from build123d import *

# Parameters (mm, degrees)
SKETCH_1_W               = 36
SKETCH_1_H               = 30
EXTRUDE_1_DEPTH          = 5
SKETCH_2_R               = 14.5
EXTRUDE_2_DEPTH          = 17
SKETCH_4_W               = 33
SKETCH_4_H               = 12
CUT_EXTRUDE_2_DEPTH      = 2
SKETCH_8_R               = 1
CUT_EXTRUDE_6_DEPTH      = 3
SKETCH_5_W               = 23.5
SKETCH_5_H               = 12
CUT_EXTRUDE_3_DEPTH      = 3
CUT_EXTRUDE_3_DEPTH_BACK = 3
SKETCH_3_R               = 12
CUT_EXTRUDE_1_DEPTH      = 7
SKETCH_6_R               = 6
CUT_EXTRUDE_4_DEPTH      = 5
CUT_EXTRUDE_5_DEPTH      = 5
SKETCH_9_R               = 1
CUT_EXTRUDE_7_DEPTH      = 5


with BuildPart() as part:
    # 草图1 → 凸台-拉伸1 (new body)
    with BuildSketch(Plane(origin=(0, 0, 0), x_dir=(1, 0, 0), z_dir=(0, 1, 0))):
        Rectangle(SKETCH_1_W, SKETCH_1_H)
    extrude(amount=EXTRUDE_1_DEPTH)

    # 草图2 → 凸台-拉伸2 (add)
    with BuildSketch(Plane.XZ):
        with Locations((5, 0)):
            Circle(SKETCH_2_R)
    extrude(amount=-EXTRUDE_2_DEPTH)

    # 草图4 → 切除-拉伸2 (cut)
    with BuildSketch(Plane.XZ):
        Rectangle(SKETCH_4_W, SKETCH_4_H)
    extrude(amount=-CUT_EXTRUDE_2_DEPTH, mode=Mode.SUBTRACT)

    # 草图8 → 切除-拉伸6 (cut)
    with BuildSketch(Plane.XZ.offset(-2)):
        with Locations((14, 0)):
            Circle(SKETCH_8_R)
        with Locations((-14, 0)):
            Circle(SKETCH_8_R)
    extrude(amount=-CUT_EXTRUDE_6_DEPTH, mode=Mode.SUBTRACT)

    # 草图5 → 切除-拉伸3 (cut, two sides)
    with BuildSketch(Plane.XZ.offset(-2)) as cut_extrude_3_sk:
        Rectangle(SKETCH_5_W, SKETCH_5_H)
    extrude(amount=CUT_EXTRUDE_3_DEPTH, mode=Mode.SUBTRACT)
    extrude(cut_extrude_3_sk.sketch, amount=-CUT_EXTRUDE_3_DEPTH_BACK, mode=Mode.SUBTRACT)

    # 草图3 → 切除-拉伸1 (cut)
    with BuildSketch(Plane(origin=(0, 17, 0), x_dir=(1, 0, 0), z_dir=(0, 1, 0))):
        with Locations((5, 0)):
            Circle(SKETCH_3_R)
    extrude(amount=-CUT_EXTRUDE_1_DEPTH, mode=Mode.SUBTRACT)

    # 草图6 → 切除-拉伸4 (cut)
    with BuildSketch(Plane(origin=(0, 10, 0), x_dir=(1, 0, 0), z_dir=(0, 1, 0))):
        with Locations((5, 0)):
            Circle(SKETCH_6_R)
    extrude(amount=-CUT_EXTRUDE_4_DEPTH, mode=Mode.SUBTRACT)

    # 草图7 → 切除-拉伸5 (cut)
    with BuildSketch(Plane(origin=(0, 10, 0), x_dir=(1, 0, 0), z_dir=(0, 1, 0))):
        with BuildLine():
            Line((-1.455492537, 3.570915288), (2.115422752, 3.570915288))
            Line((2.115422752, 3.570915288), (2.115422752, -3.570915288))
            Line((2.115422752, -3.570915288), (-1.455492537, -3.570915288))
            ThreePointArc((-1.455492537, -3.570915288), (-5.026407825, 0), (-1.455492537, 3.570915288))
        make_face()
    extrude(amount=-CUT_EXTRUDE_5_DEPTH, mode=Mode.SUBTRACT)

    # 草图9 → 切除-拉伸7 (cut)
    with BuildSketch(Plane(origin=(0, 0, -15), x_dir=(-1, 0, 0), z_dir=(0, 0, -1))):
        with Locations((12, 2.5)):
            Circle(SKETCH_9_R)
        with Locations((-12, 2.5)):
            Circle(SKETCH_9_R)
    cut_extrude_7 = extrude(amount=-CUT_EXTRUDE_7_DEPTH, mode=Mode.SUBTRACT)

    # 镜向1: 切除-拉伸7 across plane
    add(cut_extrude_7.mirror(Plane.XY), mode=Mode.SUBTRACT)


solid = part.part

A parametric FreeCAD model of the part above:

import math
import FreeCAD as App
import Part
import Sketcher

V = App.Vector
Q = App.Units.Quantity

doc = App.newDocument("Part")
body = doc.addObject("PartDesign::Body", "Body")

# Sketch on XZ plane
sketch1 = doc.addObject("Sketcher::SketchObject", "Sketch")
body.addObject(sketch1)
sketch1.AttachmentSupport = (doc.XZ_Plane, [""])
sketch1.MapMode = "FlatFace"
sketch1.addGeometry([
    Part.LineSegment(V(-18, -15, 0), V(-18, 15, 0)),
    Part.LineSegment(V(-18, 15, 0), V(18, 15, 0)),
    Part.LineSegment(V(18, 15, 0), V(18, -15, 0)),
    Part.LineSegment(V(18, -15, 0), V(-18, -15, 0)),
], False)
sketch1.addConstraint([
    Sketcher.Constraint("Coincident", 0, 2, 1, 1),
    Sketcher.Constraint("Coincident", 1, 2, 2, 1),
    Sketcher.Constraint("Coincident", 2, 2, 3, 1),
    Sketcher.Constraint("Coincident", 3, 2, 0, 1),
    Sketcher.Constraint("Vertical", 0),
    Sketcher.Constraint("Horizontal", 1),
    Sketcher.Constraint("Vertical", 2),
    Sketcher.Constraint("Horizontal", 3),
    Sketcher.Constraint("Symmetric", 0, 2, 2, 2, -1, 1),
    Sketcher.Constraint("DistanceX", 1, 1, 1, 2, Q("36 mm")),
    Sketcher.Constraint("DistanceY", 0, 1, 0, 2, Q("30 mm")),
])
pad1 = doc.addObject("PartDesign::Pad", "Pad")
body.addObject(pad1)
pad1.Profile = sketch1
pad1.Length = 5
pad1.Reversed = True

# Sketch on XZ plane
sketch2 = doc.addObject("Sketcher::SketchObject", "Sketch001")
body.addObject(sketch2)
sketch2.AttachmentSupport = (doc.XZ_Plane, [""])
sketch2.MapMode = "FlatFace"
sketch2.addGeometry(Part.Circle(V(5, 0, 0), V(0, 0, 1), 14.5), False)
sketch2.addConstraint([
    Sketcher.Constraint("PointOnObject", 0, 3, -1),
    Sketcher.Constraint("Diameter", 0, Q("29 mm")),
    Sketcher.Constraint("DistanceX", -1, 1, 0, 3, Q("5 mm")),
])
pad2 = doc.addObject("PartDesign::Pad", "Pad001")
body.addObject(pad2)
pad2.Profile = sketch2
pad2.Length = 17
pad2.Reversed = True

# Sketch on XZ plane
sketch3 = doc.addObject("Sketcher::SketchObject", "Sketch002")
body.addObject(sketch3)
sketch3.AttachmentSupport = (doc.XZ_Plane, [""])
sketch3.MapMode = "FlatFace"
sketch3.addGeometry([
    Part.LineSegment(V(-16.5, 6, 0), V(-16.5, -6, 0)),
    Part.LineSegment(V(-16.5, -6, 0), V(16.5, -6, 0)),
    Part.LineSegment(V(16.5, -6, 0), V(16.5, 6, 0)),
    Part.LineSegment(V(16.5, 6, 0), V(-16.5, 6, 0)),
], False)
sketch3.addConstraint([
    Sketcher.Constraint("Coincident", 0, 2, 1, 1),
    Sketcher.Constraint("Coincident", 1, 2, 2, 1),
    Sketcher.Constraint("Coincident", 2, 2, 3, 1),
    Sketcher.Constraint("Coincident", 3, 2, 0, 1),
    Sketcher.Constraint("Vertical", 0),
    Sketcher.Constraint("Horizontal", 1),
    Sketcher.Constraint("Vertical", 2),
    Sketcher.Constraint("Horizontal", 3),
    Sketcher.Constraint("Symmetric", 0, 2, 2, 2, -1, 1),
    Sketcher.Constraint("DistanceX", 1, 1, 1, 2, Q("33 mm")),
    Sketcher.Constraint("DistanceY", 0, 2, 0, 1, Q("12 mm")),
])
pocket1 = doc.addObject("PartDesign::Pocket", "Pocket")
body.addObject(pocket1)
pocket1.Profile = sketch3
pocket1.Length = 2

# Sketch on XZ plane
sketch4 = doc.addObject("Sketcher::SketchObject", "Sketch003")
body.addObject(sketch4)
sketch4.AttachmentSupport = (doc.XZ_Plane, [""])
sketch4.MapMode = "FlatFace"
sketch4.AttachmentOffset = App.Placement(V(0, 0, -2), App.Rotation())
sketch4.addGeometry([
    Part.Circle(V(14, 0, 0), V(0, 0, 1), 1),
    Part.Circle(V(-14, 0, 0), V(0, 0, 1), 1),
], False)
sketch4.addConstraint([
    Sketcher.Constraint("Equal", 0, 1),
    Sketcher.Constraint("Symmetric", 0, 3, 1, 3, -1, 1),
    Sketcher.Constraint("PointOnObject", 0, 3, -1),
    Sketcher.Constraint("Diameter", 0, Q("2 mm")),
    Sketcher.Constraint("DistanceX", -1, 1, 0, 3, Q("14 mm")),
])
pocket2 = doc.addObject("PartDesign::Pocket", "Pocket001")
body.addObject(pocket2)
pocket2.Profile = sketch4
pocket2.Length = 3

# Sketch on XZ plane
sketch5 = doc.addObject("Sketcher::SketchObject", "Sketch004")
body.addObject(sketch5)
sketch5.AttachmentSupport = (doc.XZ_Plane, [""])
sketch5.MapMode = "FlatFace"
sketch5.AttachmentOffset = App.Placement(V(0, 0, -2), App.Rotation())
sketch5.addGeometry([
    Part.LineSegment(V(-11.75, 6, 0), V(-11.75, -6, 0)),
    Part.LineSegment(V(-11.75, -6, 0), V(11.75, -6, 0)),
    Part.LineSegment(V(11.75, -6, 0), V(11.75, 6, 0)),
    Part.LineSegment(V(11.75, 6, 0), V(-11.75, 6, 0)),
], False)
sketch5.addConstraint([
    Sketcher.Constraint("Coincident", 0, 2, 1, 1),
    Sketcher.Constraint("Coincident", 1, 2, 2, 1),
    Sketcher.Constraint("Coincident", 2, 2, 3, 1),
    Sketcher.Constraint("Coincident", 3, 2, 0, 1),
    Sketcher.Constraint("Vertical", 0),
    Sketcher.Constraint("Horizontal", 1),
    Sketcher.Constraint("Vertical", 2),
    Sketcher.Constraint("Horizontal", 3),
    Sketcher.Constraint("Symmetric", 0, 2, 2, 2, -1, 1),
    Sketcher.Constraint("DistanceY", 0, 2, 0, 1, Q("12 mm")),
    Sketcher.Constraint("DistanceX", 1, 1, 1, 2, Q("23.5 mm")),
])
pocket3 = doc.addObject("PartDesign::Pocket", "Pocket002")
body.addObject(pocket3)
pocket3.Profile = sketch5
pocket3.Type = "TwoLengths"
pocket3.Length = 3
pocket3.Length2 = 3
pocket3.Reversed = True

# Sketch on XZ plane
sketch6 = doc.addObject("Sketcher::SketchObject", "Sketch005")
body.addObject(sketch6)
sketch6.AttachmentSupport = (doc.XZ_Plane, [""])
sketch6.MapMode = "FlatFace"
sketch6.AttachmentOffset = App.Placement(V(0, 0, -17), App.Rotation())
sketch6.addGeometry(Part.Circle(V(5, 0, 0), V(0, 0, 1), 12), False)
sketch6.addConstraint([
    Sketcher.Constraint("PointOnObject", 0, 3, -1),
    Sketcher.Constraint("Diameter", 0, Q("24 mm")),
    Sketcher.Constraint("DistanceX", -1, 1, 0, 3, Q("5 mm")),
])
pocket4 = doc.addObject("PartDesign::Pocket", "Pocket003")
body.addObject(pocket4)
pocket4.Profile = sketch6
pocket4.Length = 7
pocket4.Reversed = True

# Sketch on XZ plane
sketch7 = doc.addObject("Sketcher::SketchObject", "Sketch006")
body.addObject(sketch7)
sketch7.AttachmentSupport = (doc.XZ_Plane, [""])
sketch7.MapMode = "FlatFace"
sketch7.AttachmentOffset = App.Placement(V(0, 0, -10), App.Rotation())
sketch7.addGeometry(Part.Circle(V(5, 0, 0), V(0, 0, 1), 6), False)
sketch7.addConstraint([
    Sketcher.Constraint("PointOnObject", 0, 3, -1),
    Sketcher.Constraint("Diameter", 0, Q("12 mm")),
    Sketcher.Constraint("DistanceX", -1, 1, 0, 3, Q("5 mm")),
])
pocket5 = doc.addObject("PartDesign::Pocket", "Pocket004")
body.addObject(pocket5)
pocket5.Profile = sketch7
pocket5.Length = 5
pocket5.Reversed = True

# Sketch on XZ plane
sketch8 = doc.addObject("Sketcher::SketchObject", "Sketch007")
body.addObject(sketch8)
sketch8.AttachmentSupport = (doc.XZ_Plane, [""])
sketch8.MapMode = "FlatFace"
sketch8.AttachmentOffset = App.Placement(V(0, 0, -10), App.Rotation())
sketch8.addGeometry([
    Part.LineSegment(V(2.115423, -3.570915, 0), V(-1.455493, -3.570915, 0)),
    Part.ArcOfCircle(Part.Circle(V(-1.455493, 0, 0), V(0, 0, 1), 3.570915), math.radians(90), math.radians(270)),
    Part.LineSegment(V(-1.455493, 3.570915, 0), V(2.115423, 3.570915, 0)),
    Part.LineSegment(V(2.115423, 3.570915, 0), V(2.115423, -3.570915, 0)),
], False)
sketch8.addConstraint([
    Sketcher.Constraint("Tangent", 0, 2, 1, 2),
    Sketcher.Constraint("Tangent", 1, 1, 2, 1),
    Sketcher.Constraint("Coincident", 2, 2, 3, 1),
    Sketcher.Constraint("Coincident", 3, 2, 0, 1),
    Sketcher.Constraint("Horizontal", 0),
    Sketcher.Constraint("Horizontal", 2),
    Sketcher.Constraint("Vertical", 3),
    Sketcher.Constraint("PointOnObject", 1, 3, -1),
    Sketcher.Constraint("Radius", 1, Q("3.570915 mm")),
    Sketcher.Constraint("DistanceX", 0, 2, 0, 1, Q("3.570915 mm")),
    Sketcher.Constraint("DistanceX", 1, 3, -1, 1, Q("1.455493 mm")),
])
pocket6 = doc.addObject("PartDesign::Pocket", "Pocket005")
body.addObject(pocket6)
pocket6.Profile = sketch8
pocket6.Length = 5
pocket6.Reversed = True

# Sketch on XY plane
sketch9 = doc.addObject("Sketcher::SketchObject", "Sketch008")
body.addObject(sketch9)
sketch9.AttachmentSupport = (doc.XY_Plane, [""])
sketch9.MapMode = "FlatFace"
sketch9.AttachmentOffset = App.Placement(V(0, 0, -15), App.Rotation())
sketch9.addGeometry([
    Part.Circle(V(-12, 2.5, 0), V(0, 0, 1), 1),
    Part.Circle(V(12, 2.5, 0), V(0, 0, 1), 1),
], False)
sketch9.addConstraint([
    Sketcher.Constraint("Equal", 0, 1),
    Sketcher.Constraint("Symmetric", 0, 3, 1, 3, -2),
    Sketcher.Constraint("Diameter", 0, Q("2 mm")),
    Sketcher.Constraint("DistanceX", 0, 3, -1, 1, Q("12 mm")),
    Sketcher.Constraint("DistanceY", -1, 1, 0, 3, Q("2.5 mm")),
])
pocket7 = doc.addObject("PartDesign::Pocket", "Pocket006")
body.addObject(pocket7)
pocket7.Profile = sketch9
pocket7.Length = 5
pocket7.Reversed = True
doc.recompute()

mirrored = doc.addObject("PartDesign::Mirrored", "Mirrored")
body.addObject(mirrored)
mirrored.Originals = [pocket7]
mirrored.MirrorPlane = (doc.XY_Plane, [""])
body.Tip = mirrored

doc.recompute()
